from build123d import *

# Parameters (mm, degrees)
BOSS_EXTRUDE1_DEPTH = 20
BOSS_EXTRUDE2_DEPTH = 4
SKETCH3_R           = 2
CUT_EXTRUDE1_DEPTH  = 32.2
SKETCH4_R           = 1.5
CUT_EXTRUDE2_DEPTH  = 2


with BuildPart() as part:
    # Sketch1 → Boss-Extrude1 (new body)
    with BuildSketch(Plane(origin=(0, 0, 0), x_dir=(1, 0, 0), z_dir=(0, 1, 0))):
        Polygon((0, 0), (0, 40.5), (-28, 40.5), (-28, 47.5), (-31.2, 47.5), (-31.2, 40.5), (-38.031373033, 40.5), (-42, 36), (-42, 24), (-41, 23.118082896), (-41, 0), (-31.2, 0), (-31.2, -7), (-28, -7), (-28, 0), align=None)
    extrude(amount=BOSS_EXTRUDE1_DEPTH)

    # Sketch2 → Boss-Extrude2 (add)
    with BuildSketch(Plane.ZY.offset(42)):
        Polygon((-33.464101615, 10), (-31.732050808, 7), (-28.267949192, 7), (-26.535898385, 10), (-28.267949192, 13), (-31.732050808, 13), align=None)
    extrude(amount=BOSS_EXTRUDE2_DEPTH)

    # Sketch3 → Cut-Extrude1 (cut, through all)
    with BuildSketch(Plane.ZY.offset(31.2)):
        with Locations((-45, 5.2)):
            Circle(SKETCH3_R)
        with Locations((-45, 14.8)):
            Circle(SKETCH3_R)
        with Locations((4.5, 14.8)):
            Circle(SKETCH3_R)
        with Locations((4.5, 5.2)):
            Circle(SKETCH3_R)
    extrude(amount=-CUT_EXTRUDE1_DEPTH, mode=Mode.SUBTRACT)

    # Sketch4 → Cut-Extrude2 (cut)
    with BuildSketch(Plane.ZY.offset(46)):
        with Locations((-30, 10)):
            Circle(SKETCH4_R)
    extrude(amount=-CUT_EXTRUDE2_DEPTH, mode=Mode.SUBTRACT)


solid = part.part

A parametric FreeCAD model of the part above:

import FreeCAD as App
import Part
import Sketcher

V = App.Vector
Q = App.Units.Quantity


def add_polygon(sketch, points):
    """Adds a closed chain of lines whose ends are joined by coincident constraints."""
    first, n = sketch.GeometryCount, len(points)
    for a, b in zip(points, points[1:] + points[:1]):
        sketch.addGeometry(Part.LineSegment(App.Vector(*a, 0), App.Vector(*b, 0)), False)
    for i in range(n):
        sketch.addConstraint(Sketcher.Constraint("Coincident", first + i, 2, first + (i + 1) % n, 1))

doc = App.newDocument("Part")
body = doc.addObject("PartDesign::Body", "Body")

sketch1 = body.newObject("Sketcher::SketchObject", "Sketch")
sketch1.AttachmentSupport = (doc.getObject("XZ_Plane"), [""])
sketch1.MapMode = "FlatFace"
add_polygon(sketch1, [(0, 0), (0, -40.5), (-28, -40.5), (-28, -47.5), (-31.2, -47.5), (-31.2, -40.5), (-38.031373, -40.5), (-42, -36), (-42, -24), (-41, -23.118083), (-41, 0), (-31.2, 0), (-31.2, 7), (-28, 7), (-28, 0)])
sketch1.addConstraint([
    Sketcher.Constraint("Vertical", 0),
    Sketcher.Constraint("Horizontal", 1),
    Sketcher.Constraint("Vertical", 2),
    Sketcher.Constraint("Horizontal", 3),
    Sketcher.Constraint("Vertical", 4),
    Sketcher.Constraint("Horizontal", 5),
    Sketcher.Constraint("Vertical", 7),
    Sketcher.Constraint("Vertical", 9),
    Sketcher.Constraint("Horizontal", 10),
    Sketcher.Constraint("Vertical", 11),
    Sketcher.Constraint("Horizontal", 12),
    Sketcher.Constraint("Vertical", 13),
    Sketcher.Constraint("Horizontal", 14),
    Sketcher.Constraint("Coincident", 14, 2, -1, 1),
    Sketcher.Constraint("PointOnObject", 9, 2, -1),
    Sketcher.Constraint("Perpendicular", 6, 8),
    Sketcher.Constraint("Horizontal", 1, 2, 4, 2),
    Sketcher.Constraint("Vertical", 4, 2, 10, 2),
    Sketcher.Constraint("Vertical", 2, 2, 12, 2),
    Sketcher.Constraint("Equal", 4, 11),
    Sketcher.Constraint("DistanceX", 1, 2, 1, 1, Q("28 mm")),
    Sketcher.Constraint("DistanceY", 2, 2, 2, 1, Q("7 mm")),
    Sketcher.Constraint("DistanceY", 7, 1, 7, 2, Q("12 mm")),
    Sketcher.Constraint("Distance", 6, Q("6 mm")),
    Sketcher.Constraint("DistanceX", 3, 2, 3, 1, Q("3.2 mm")),
    Sketcher.Constraint("DistanceX", 10, 1, 10, 2, Q("9.8 mm")),
    Sketcher.Constraint("DistanceY", 0, 2, 0, 1, Q("40.5 mm")),
    Sketcher.Constraint("DistanceX", 6, 2, -1, 1, Q("42 mm")),
    Sketcher.Constraint("DistanceY", 6, 2, -1, 1, Q("36 mm")),
])
pad1 = body.newObject("PartDesign::Pad", "Pad")
pad1.Profile = sketch1
pad1.Length = 20
pad1.Reversed = True

sketch2 = body.newObject("Sketcher::SketchObject", "Sketch001")
sketch2.AttachmentSupport = (doc.getObject("YZ_Plane"), [""])
sketch2.MapMode = "FlatFace"
sketch2.AttachmentOffset = App.Placement(V(0, 0, -42), App.Rotation())
add_polygon(sketch2, [(10, -33.464102), (7, -31.732051), (7, -28.267949), (10, -26.535898), (13, -28.267949), (13, -31.732051)])
sketch2.addConstraint([
    Sketcher.Constraint("Vertical", 1),
    Sketcher.Constraint("Vertical", 4),
    Sketcher.Constraint("Parallel", 0, 3),
    Sketcher.Constraint("Parallel", 2, 5),
    Sketcher.Constraint("Horizontal", 1, 2, 3, 2),
    Sketcher.Constraint("Horizontal", 0, 2, 4, 2),
    Sketcher.Constraint("Vertical", 2, 2, 5, 2),
    Sketcher.Constraint("Angle", 0, Q("150 deg")),
    Sketcher.Constraint("DistanceX", -1, 1, 0, 2, Q("7 mm")),
    Sketcher.Constraint("DistanceX", -1, 1, 2, 2, Q("10 mm")),
    Sketcher.Constraint("DistanceY", 1, 1, 1, 2, Q("3.464102 mm")),
    Sketcher.Constraint("DistanceY", 2, 2, -1, 1, Q("26.535898 mm")),
])
pad2 = body.newObject("PartDesign::Pad", "Pad001")
pad2.Profile = sketch2
pad2.Length = 4
pad2.Reversed = True

sketch3 = body.newObject("Sketcher::SketchObject", "Sketch002")
sketch3.AttachmentSupport = (doc.getObject("YZ_Plane"), [""])
sketch3.MapMode = "FlatFace"
sketch3.AttachmentOffset = App.Placement(V(0, 0, -31.2), App.Rotation())
sketch3.addGeometry([
    Part.Circle(V(5.2, -45, 0), V(0, 0, 1), 2),
    Part.Circle(V(14.8, -45, 0), V(0, 0, 1), 2),
    Part.Circle(V(14.8, 4.5, 0), V(0, 0, 1), 2),
    Part.Circle(V(5.2, 4.5, 0), V(0, 0, 1), 2),
], False)
sketch3.addConstraint([
    Sketcher.Constraint("Equal", 0, 1),
    Sketcher.Constraint("Equal", 1, 2),
    Sketcher.Constraint("Equal", 2, 3),
    Sketcher.Constraint("Horizontal", 0, 3, 1, 3),
    Sketcher.Constraint("Horizontal", 2, 3, 3, 3),
    Sketcher.Constraint("Vertical", 1, 3, 2, 3),
    Sketcher.Constraint("Vertical", 0, 3, 3, 3),
    Sketcher.Constraint("Diameter", 0, Q("4 mm")),
    Sketcher.Constraint("DistanceY", 0, 3, -1, 1, Q("45 mm")),
    Sketcher.Constraint("DistanceX", -1, 1, 0, 3, Q("5.2 mm")),
    Sketcher.Constraint("DistanceX", -1, 1, 1, 3, Q("14.8 mm")),
    Sketcher.Constraint("DistanceY", -1, 1, 2, 3, Q("4.5 mm")),
])
pocket1 = body.newObject("PartDesign::Pocket", "Pocket")
pocket1.Profile = sketch3
pocket1.Type = "ThroughAll"
pocket1.Reversed = True

sketch4 = body.newObject("Sketcher::SketchObject", "Sketch003")
sketch4.AttachmentSupport = (doc.getObject("YZ_Plane"), [""])
sketch4.MapMode = "FlatFace"
sketch4.AttachmentOffset = App.Placement(V(0, 0, -46), App.Rotation())
sketch4.addGeometry(Part.Circle(V(10, -30, 0), V(0, 0, 1), 1.5), False)
sketch4.addConstraint([
    Sketcher.Constraint("Diameter", 0, Q("3 mm")),
    Sketcher.Constraint("DistanceX", -1, 1, 0, 3, Q("10 mm")),
    Sketcher.Constraint("DistanceY", 0, 3, -1, 1, Q("30 mm")),
])
pocket2 = body.newObject("PartDesign::Pocket", "Pocket001")
pocket2.Profile = sketch4
pocket2.Length = 2
pocket2.Reversed = True

doc.recompute()
